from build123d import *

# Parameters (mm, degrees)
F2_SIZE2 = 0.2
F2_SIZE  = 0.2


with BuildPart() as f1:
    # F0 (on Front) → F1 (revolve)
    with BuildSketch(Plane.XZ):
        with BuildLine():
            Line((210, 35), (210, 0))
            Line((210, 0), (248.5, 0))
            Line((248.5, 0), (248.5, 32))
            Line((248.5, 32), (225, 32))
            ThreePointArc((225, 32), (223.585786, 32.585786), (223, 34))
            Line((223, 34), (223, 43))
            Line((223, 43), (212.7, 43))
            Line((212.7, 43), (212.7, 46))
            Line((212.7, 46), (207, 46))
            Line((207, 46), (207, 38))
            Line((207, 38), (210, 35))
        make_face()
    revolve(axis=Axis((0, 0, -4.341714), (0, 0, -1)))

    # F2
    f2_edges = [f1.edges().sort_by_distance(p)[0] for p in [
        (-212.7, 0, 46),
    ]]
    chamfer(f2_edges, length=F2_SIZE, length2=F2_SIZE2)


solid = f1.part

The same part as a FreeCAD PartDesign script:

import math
import FreeCAD as App
import Part
import Sketcher

V = App.Vector
Q = App.Units.Quantity


def edges_at(feature, points):
    """Names of the edges that pass closest to the given points."""
    edges = feature.Shape.Edges
    near = lambda p: min(range(len(edges)), key=lambda i: edges[i].distToShape(Part.Vertex(*p))[0])
    return sorted({f"Edge{near(p) + 1}" for p in points})

doc = App.newDocument("Part")
body = doc.addObject("PartDesign::Body", "Body")

# Sketch on XZ plane
sketch1 = body.newObject("Sketcher::SketchObject", "Sketch")
sketch1.AttachmentSupport = (doc.getObject("XZ_Plane"), [""])
sketch1.MapMode = "FlatFace"
sketch1.addGeometry([
    Part.LineSegment(V(210, 35, 0), V(210, 0, 0)),  # 0
    Part.LineSegment(V(210, 0, 0), V(248.5, 0, 0)),  # 1
    Part.LineSegment(V(248.5, 0, 0), V(248.5, 32, 0)),  # 2
    Part.LineSegment(V(248.5, 32, 0), V(225, 32, 0)),  # 3
    Part.ArcOfCircle(Part.Circle(V(225, 34, 0), V(0, 0, 1), 2), math.radians(180), math.radians(270)),  # 4
    Part.LineSegment(V(223, 34, 0), V(223, 43, 0)),  # 5
    Part.LineSegment(V(223, 43, 0), V(212.7, 43, 0)),  # 6
    Part.LineSegment(V(212.7, 43, 0), V(212.7, 46, 0)),  # 7
    Part.LineSegment(V(212.7, 46, 0), V(207, 46, 0)),  # 8
    Part.LineSegment(V(207, 46, 0), V(207, 38, 0)),  # 9
    Part.LineSegment(V(207, 38, 0), V(210, 35, 0)),  # 10
], False)
sketch1.addConstraint([
    Sketcher.Constraint("Coincident", 0, 2, 1, 1),
    Sketcher.Constraint("Coincident", 1, 2, 2, 1),
    Sketcher.Constraint("Coincident", 2, 2, 3, 1),
    Sketcher.Constraint("Tangent", 3, 2, 4, 2),
    Sketcher.Constraint("Tangent", 4, 1, 5, 1),
    Sketcher.Constraint("Coincident", 5, 2, 6, 1),
    Sketcher.Constraint("Coincident", 6, 2, 7, 1),
    Sketcher.Constraint("Coincident", 7, 2, 8, 1),
    Sketcher.Constraint("Coincident", 8, 2, 9, 1),
    Sketcher.Constraint("Coincident", 9, 2, 10, 1),
    Sketcher.Constraint("Coincident", 10, 2, 0, 1),
    Sketcher.Constraint("Vertical", 0),
    Sketcher.Constraint("Horizontal", 1),
    Sketcher.Constraint("Vertical", 2),
    Sketcher.Constraint("Horizontal", 3),
    Sketcher.Constraint("Vertical", 5),
    Sketcher.Constraint("Horizontal", 6),
    Sketcher.Constraint("Vertical", 7),
    Sketcher.Constraint("Horizontal", 8),
    Sketcher.Constraint("Vertical", 9),
    Sketcher.Constraint("PointOnObject", 0, 2, -1),
    Sketcher.Constraint("Radius", 4, 1.999999),
    Sketcher.Constraint("DistanceY", 0, 2, 0, 1, 35.0),
    Sketcher.Constraint("DistanceY", 2, 1, 2, 2, 32.0),
    Sketcher.Constraint("DistanceY", 5, 1, 5, 2, 9.0),
    Sketcher.Constraint("DistanceY", 7, 1, 7, 2, 3.0),
    Sketcher.Constraint("DistanceY", 9, 2, 9, 1, 8.0),
    Sketcher.Constraint("Angle", 10, Q("-45 deg")),
    Sketcher.Constraint("DistanceX", 1, 1, 1, 2, 38.5),
    Sketcher.Constraint("DistanceX", 3, 2, 3, 1, 23.5),
    Sketcher.Constraint("DistanceX", 6, 2, 6, 1, 10.3),
    Sketcher.Constraint("DistanceX", -1, 1, 4, 3, 224.999999),
])
revolution = body.newObject("PartDesign::Revolution", "Revolution")
revolution.Profile = sketch1
revolution.ReferenceAxis = (sketch1, ["V_Axis"])
revolution.Angle = 360
doc.recompute()

chamfer = body.newObject("PartDesign::Chamfer", "Chamfer")
chamfer.Base = (revolution, edges_at(revolution, [(-212.7, 0, 46)]))
chamfer.ChamferType = "Two distances"
chamfer.Size = 0.2
chamfer.Size2 = 0.2

doc.recompute()
